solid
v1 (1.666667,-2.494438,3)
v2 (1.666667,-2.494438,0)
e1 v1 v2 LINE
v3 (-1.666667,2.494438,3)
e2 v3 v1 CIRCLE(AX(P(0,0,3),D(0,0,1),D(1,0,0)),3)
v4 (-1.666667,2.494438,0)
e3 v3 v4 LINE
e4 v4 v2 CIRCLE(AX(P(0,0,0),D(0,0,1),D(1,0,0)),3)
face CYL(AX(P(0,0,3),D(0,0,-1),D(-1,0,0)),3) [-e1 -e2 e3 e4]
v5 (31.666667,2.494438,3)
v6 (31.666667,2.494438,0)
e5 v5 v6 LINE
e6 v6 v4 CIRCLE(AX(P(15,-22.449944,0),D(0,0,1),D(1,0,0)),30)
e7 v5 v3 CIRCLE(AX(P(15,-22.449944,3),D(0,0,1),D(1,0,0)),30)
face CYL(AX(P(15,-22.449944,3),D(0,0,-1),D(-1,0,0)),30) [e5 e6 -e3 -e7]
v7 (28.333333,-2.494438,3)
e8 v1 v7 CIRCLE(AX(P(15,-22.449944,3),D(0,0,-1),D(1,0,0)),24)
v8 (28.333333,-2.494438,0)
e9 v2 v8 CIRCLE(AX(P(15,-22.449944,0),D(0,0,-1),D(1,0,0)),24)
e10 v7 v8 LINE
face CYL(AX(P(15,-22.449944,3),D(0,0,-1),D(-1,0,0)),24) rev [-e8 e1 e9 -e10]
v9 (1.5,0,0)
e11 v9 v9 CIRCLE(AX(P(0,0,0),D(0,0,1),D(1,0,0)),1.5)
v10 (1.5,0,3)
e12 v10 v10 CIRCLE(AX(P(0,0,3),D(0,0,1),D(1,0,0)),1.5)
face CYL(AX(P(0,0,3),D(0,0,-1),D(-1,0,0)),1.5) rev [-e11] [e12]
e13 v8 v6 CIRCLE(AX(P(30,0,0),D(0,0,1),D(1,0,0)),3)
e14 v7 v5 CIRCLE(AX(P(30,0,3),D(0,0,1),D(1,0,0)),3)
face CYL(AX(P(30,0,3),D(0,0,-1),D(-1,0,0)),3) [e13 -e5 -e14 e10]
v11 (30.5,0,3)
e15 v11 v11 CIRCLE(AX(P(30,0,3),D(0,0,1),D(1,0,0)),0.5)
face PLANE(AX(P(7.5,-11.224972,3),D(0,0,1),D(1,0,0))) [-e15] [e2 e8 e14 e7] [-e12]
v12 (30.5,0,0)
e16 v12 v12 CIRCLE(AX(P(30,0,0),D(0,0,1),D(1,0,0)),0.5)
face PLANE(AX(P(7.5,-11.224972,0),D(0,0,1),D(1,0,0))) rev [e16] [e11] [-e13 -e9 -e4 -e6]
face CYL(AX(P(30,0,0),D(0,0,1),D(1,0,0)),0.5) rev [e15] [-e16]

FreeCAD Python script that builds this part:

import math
import FreeCAD as App
import Part
import Sketcher
from FreeCAD import Vector
Q = App.Units.Quantity

doc = App.newDocument("Part")
body = doc.addObject("PartDesign::Body", "Body")

# Sketch on XY plane
sketch1 = body.newObject("Sketcher::SketchObject", "Sketch")
sketch1.AttachmentSupport = (doc.getObject("XY_Plane"), [""])
sketch1.MapMode = "FlatFace"
sketch1.addGeometry([
    Part.ArcOfCircle(Part.Circle(Vector(15, -22.4, 0), Vector(0, 0, 1), 30), math.radians(56), math.radians(124)),  # 0
    Part.ArcOfCircle(Part.Circle(Vector(0, 0, 0), Vector(0, 0, 1), 3), math.radians(124), math.radians(304)),  # 1
    Part.ArcOfCircle(Part.Circle(Vector(15, -22.4, 0), Vector(0, 0, 1), 24), math.radians(56), math.radians(124)),  # 2
    Part.ArcOfCircle(Part.Circle(Vector(30, 0, 0), Vector(0, 0, 1), 3), math.radians(-124), math.radians(56)),  # 3
    Part.Circle(Vector(0, 0, 0), Vector(0, 0, 1), 1.5),  # 4
    Part.Circle(Vector(30, 0, 0), Vector(0, 0, 1), 1.5),  # 5
], False)
sketch1.addConstraint([
    Sketcher.Constraint("Tangent", 0, 2, 1, 1),
    Sketcher.Constraint("Tangent", 1, 2, 2, 2),
    Sketcher.Constraint("Tangent", 2, 1, 3, 1),
    Sketcher.Constraint("Tangent", 3, 2, 0, 1),
    Sketcher.Constraint("Coincident", 1, 3, -1, 1),
    Sketcher.Constraint("Coincident", 4, 3, -1, 1),
    Sketcher.Constraint("Coincident", 2, 3, 0, 3),
    Sketcher.Constraint("Coincident", 5, 3, 3, 3),
    Sketcher.Constraint("Equal", 4, 5),
    Sketcher.Constraint("PointOnObject", 3, 3, -1),
    Sketcher.Constraint("Diameter", 4, Q("3 mm")),
    Sketcher.Constraint("Radius", 0, Q("30 mm")),
    Sketcher.Constraint("Radius", 1, Q("3 mm")),
    Sketcher.Constraint("DistanceX", -1, 1, 0, 3, Q("15 mm")),
])
pad1 = body.newObject("PartDesign::Pad", "Pad")
pad1.Profile = sketch1
pad1.Length = 3

# Sketch on XY plane
sketch2 = body.newObject("Sketcher::SketchObject", "Sketch001")
sketch2.AttachmentSupport = (doc.getObject("XY_Plane"), [""])
sketch2.MapMode = "FlatFace"
sketch2.AttachmentOffset = App.Placement(Vector(0, 0, 3), App.Rotation())
sketch2.addGeometry([
    Part.Circle(Vector(30, 0, 0), Vector(0, 0, 1), 1.5),
    Part.Circle(Vector(30, 0, 0), Vector(0, 0, 1), 0.5),
], False)
sketch2.addConstraint([
    Sketcher.Constraint("Coincident", 1, 3, 0, 3),
    Sketcher.Constraint("PointOnObject", 0, 3, -1),
    Sketcher.Constraint("Diameter", 0, Q("3 mm")),
    Sketcher.Constraint("Diameter", 1, Q("1 mm")),
    Sketcher.Constraint("DistanceX", -1, 1, 0, 3, Q("30 mm")),
])
pad2 = body.newObject("PartDesign::Pad", "Pad001")
pad2.Profile = sketch2
pad2.Length = 3
pad2.Reversed = True

doc.recompute()
